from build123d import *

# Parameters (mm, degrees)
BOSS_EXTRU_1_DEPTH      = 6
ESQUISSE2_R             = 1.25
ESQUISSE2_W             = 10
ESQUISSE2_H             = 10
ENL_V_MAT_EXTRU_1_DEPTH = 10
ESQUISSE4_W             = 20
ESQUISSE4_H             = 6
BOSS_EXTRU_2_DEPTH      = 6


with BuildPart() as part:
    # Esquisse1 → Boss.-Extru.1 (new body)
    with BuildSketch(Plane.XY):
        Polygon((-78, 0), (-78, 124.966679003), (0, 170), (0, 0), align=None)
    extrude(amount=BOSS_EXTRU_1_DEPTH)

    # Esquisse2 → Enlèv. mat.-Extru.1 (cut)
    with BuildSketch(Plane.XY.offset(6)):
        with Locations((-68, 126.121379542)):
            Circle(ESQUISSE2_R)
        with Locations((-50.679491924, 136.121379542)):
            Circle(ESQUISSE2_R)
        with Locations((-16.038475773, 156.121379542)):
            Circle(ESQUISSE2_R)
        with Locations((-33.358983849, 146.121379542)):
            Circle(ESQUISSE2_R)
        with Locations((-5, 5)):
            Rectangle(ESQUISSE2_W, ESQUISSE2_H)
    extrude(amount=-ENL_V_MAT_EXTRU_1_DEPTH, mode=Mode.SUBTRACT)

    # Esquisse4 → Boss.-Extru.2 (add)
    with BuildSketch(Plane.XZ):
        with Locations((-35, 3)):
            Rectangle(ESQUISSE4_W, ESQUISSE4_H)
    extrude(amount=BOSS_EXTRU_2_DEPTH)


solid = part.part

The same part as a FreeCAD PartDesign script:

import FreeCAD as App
import Part
import Sketcher
from FreeCAD import Vector
Q = App.Units.Quantity

doc = App.newDocument("Part")
body = doc.addObject("PartDesign::Body", "Body")

# Sketch on XY plane
sketch1 = body.newObject("Sketcher::SketchObject", "Sketch")
sketch1.AttachmentSupport = (doc.getObject("XY_Plane"), [""])
sketch1.MapMode = "FlatFace"
sketch1.addGeometry(Part.LineSegment(Vector(-78, 124.966679, 0), Vector(-78, 0, 0)), False)
sketch1.addGeometry(Part.LineSegment(Vector(-78, 0, 0), Vector(0, 0, 0)), False)
sketch1.addGeometry(Part.LineSegment(Vector(0, 0, 0), Vector(0, 170, 0)), False)
sketch1.addGeometry(Part.LineSegment(Vector(0, 170, 0), Vector(-78, 124.966679, 0)), False)
sketch1.addConstraint(Sketcher.Constraint("Coincident", 0, 2, 1, 1))
sketch1.addConstraint(Sketcher.Constraint("Coincident", 1, 2, 2, 1))
sketch1.addConstraint(Sketcher.Constraint("Coincident", 2, 2, 3, 1))
sketch1.addConstraint(Sketcher.Constraint("Coincident", 3, 2, 0, 1))
sketch1.addConstraint(Sketcher.Constraint("Vertical", 0))
sketch1.addConstraint(Sketcher.Constraint("Horizontal", 1))
sketch1.addConstraint(Sketcher.Constraint("Vertical", 2))
sketch1.addConstraint(Sketcher.Constraint("Coincident", 1, 2, -1, 1))
sketch1.addConstraint(Sketcher.Constraint("DistanceX", 1, 1, 1, 2, Q("78 mm")))
sketch1.addConstraint(Sketcher.Constraint("DistanceY", 2, 1, 2, 2, Q("170 mm")))
sketch1.addConstraint(Sketcher.Constraint("Angle", 3, Q("-150 deg")))
pad1 = body.newObject("PartDesign::Pad", "Pad")
pad1.Profile = sketch1
pad1.Length = 6

# Sketch on XY plane
sketch2 = body.newObject("Sketcher::SketchObject", "Sketch001")
sketch2.AttachmentSupport = (doc.getObject("XY_Plane"), [""])
sketch2.MapMode = "FlatFace"
sketch2.AttachmentOffset = App.Placement(Vector(0, 0, 6), App.Rotation())
sketch2.addGeometry(Part.Circle(Vector(-68, 126.12138, 0), Vector(0, 0, 1), 1.25), False)
sketch2.addGeometry(Part.Circle(Vector(-50.679492, 136.12138, 0), Vector(0, 0, 1), 1.25), False)
sketch2.addGeometry(Part.Circle(Vector(-16.038476, 156.12138, 0), Vector(0, 0, 1), 1.25), False)
sketch2.addGeometry(Part.Circle(Vector(-33.358984, 146.12138, 0), Vector(0, 0, 1), 1.25), False)
sketch2.addGeometry(Part.LineSegment(Vector(-10, 10, 0), Vector(-10, 0, 0)), False)
sketch2.addGeometry(Part.LineSegment(Vector(-10, 0, 0), Vector(0, 0, 0)), False)
sketch2.addGeometry(Part.LineSegment(Vector(0, 0, 0), Vector(0, 10, 0)), False)
sketch2.addGeometry(Part.LineSegment(Vector(0, 10, 0), Vector(-10, 10, 0)), False)
sketch2.addConstraint(Sketcher.Constraint("Coincident", 4, 2, 5, 1))
sketch2.addConstraint(Sketcher.Constraint("Coincident", 5, 2, 6, 1))
sketch2.addConstraint(Sketcher.Constraint("Coincident", 6, 2, 7, 1))
sketch2.addConstraint(Sketcher.Constraint("Coincident", 7, 2, 4, 1))
sketch2.addConstraint(Sketcher.Constraint("Vertical", 4))
sketch2.addConstraint(Sketcher.Constraint("Horizontal", 5))
sketch2.addConstraint(Sketcher.Constraint("Vertical", 6))
sketch2.addConstraint(Sketcher.Constraint("Horizontal", 7))
sketch2.addConstraint(Sketcher.Constraint("Coincident", 5, 2, -1, 1))
sketch2.addConstraint(Sketcher.Constraint("Equal", 0, 1))
sketch2.addConstraint(Sketcher.Constraint("Equal", 1, 2))
sketch2.addConstraint(Sketcher.Constraint("Equal", 2, 3))
sketch2.addConstraint(Sketcher.Constraint("Equal", 7, 4))
sketch2.addConstraint(Sketcher.Constraint("Diameter", 0, Q("2.5 mm")))
sketch2.addConstraint(Sketcher.Constraint("DistanceX", 5, 1, 5, 2, Q("10 mm")))
sketch2.addConstraint(Sketcher.Constraint("DistanceX", 0, 3, -1, 1, Q("68 mm")))
sketch2.addConstraint(Sketcher.Constraint("DistanceY", 0, 3, 1, 3, Q("10 mm")))
sketch2.addConstraint(Sketcher.Constraint("DistanceY", 1, 3, 2, 3, Q("20 mm")))
sketch2.addConstraint(Sketcher.Constraint("DistanceY", 1, 3, 3, 3, Q("10 mm")))
sketch2.addConstraint(Sketcher.Constraint("DistanceY", -1, 1, 0, 3, Q("126.12138 mm")))
sketch2.addConstraint(Sketcher.Constraint("DistanceX", 1, 3, -1, 1, Q("50.679492 mm")))
sketch2.addConstraint(Sketcher.Constraint("DistanceX", 1, 3, 3, 3, Q("17.320508 mm")))
sketch2.addConstraint(Sketcher.Constraint("DistanceX", 3, 3, 2, 3, Q("17.320508 mm")))
pocket1 = body.newObject("PartDesign::Pocket", "Pocket")
pocket1.Profile = sketch2
pocket1.Length = 10

# Sketch on XZ plane
sketch3 = body.newObject("Sketcher::SketchObject", "Sketch002")
sketch3.AttachmentSupport = (doc.getObject("XZ_Plane"), [""])
sketch3.MapMode = "FlatFace"
sketch3.addGeometry(Part.LineSegment(Vector(-45, 6, 0), Vector(-45, 0, 0)), False)
sketch3.addGeometry(Part.LineSegment(Vector(-45, 0, 0), Vector(-25, 0, 0)), False)
sketch3.addGeometry(Part.LineSegment(Vector(-25, 0, 0), Vector(-25, 6, 0)), False)
sketch3.addGeometry(Part.LineSegment(Vector(-25, 6, 0), Vector(-45, 6, 0)), False)
sketch3.addConstraint(Sketcher.Constraint("Coincident", 0, 2, 1, 1))
sketch3.addConstraint(Sketcher.Constraint("Coincident", 1, 2, 2, 1))
sketch3.addConstraint(Sketcher.Constraint("Coincident", 2, 2, 3, 1))
sketch3.addConstraint(Sketcher.Constraint("Coincident", 3, 2, 0, 1))
sketch3.addConstraint(Sketcher.Constraint("Vertical", 0))
sketch3.addConstraint(Sketcher.Constraint("Horizontal", 1))
sketch3.addConstraint(Sketcher.Constraint("Vertical", 2))
sketch3.addConstraint(Sketcher.Constraint("Horizontal", 3))
sketch3.addConstraint(Sketcher.Constraint("PointOnObject", 0, 2, -1))
sketch3.addConstraint(Sketcher.Constraint("DistanceX", 1, 1, 1, 2, Q("20 mm")))
sketch3.addConstraint(Sketcher.Constraint("DistanceY", 0, 2, 0, 1, Q("6 mm")))
sketch3.addConstraint(Sketcher.Constraint("DistanceX", 0, 2, -1, 1, Q("45 mm")))
pad2 = body.newObject("PartDesign::Pad", "Pad001")
pad2.Profile = sketch3
pad2.Length = 6

doc.recompute()
